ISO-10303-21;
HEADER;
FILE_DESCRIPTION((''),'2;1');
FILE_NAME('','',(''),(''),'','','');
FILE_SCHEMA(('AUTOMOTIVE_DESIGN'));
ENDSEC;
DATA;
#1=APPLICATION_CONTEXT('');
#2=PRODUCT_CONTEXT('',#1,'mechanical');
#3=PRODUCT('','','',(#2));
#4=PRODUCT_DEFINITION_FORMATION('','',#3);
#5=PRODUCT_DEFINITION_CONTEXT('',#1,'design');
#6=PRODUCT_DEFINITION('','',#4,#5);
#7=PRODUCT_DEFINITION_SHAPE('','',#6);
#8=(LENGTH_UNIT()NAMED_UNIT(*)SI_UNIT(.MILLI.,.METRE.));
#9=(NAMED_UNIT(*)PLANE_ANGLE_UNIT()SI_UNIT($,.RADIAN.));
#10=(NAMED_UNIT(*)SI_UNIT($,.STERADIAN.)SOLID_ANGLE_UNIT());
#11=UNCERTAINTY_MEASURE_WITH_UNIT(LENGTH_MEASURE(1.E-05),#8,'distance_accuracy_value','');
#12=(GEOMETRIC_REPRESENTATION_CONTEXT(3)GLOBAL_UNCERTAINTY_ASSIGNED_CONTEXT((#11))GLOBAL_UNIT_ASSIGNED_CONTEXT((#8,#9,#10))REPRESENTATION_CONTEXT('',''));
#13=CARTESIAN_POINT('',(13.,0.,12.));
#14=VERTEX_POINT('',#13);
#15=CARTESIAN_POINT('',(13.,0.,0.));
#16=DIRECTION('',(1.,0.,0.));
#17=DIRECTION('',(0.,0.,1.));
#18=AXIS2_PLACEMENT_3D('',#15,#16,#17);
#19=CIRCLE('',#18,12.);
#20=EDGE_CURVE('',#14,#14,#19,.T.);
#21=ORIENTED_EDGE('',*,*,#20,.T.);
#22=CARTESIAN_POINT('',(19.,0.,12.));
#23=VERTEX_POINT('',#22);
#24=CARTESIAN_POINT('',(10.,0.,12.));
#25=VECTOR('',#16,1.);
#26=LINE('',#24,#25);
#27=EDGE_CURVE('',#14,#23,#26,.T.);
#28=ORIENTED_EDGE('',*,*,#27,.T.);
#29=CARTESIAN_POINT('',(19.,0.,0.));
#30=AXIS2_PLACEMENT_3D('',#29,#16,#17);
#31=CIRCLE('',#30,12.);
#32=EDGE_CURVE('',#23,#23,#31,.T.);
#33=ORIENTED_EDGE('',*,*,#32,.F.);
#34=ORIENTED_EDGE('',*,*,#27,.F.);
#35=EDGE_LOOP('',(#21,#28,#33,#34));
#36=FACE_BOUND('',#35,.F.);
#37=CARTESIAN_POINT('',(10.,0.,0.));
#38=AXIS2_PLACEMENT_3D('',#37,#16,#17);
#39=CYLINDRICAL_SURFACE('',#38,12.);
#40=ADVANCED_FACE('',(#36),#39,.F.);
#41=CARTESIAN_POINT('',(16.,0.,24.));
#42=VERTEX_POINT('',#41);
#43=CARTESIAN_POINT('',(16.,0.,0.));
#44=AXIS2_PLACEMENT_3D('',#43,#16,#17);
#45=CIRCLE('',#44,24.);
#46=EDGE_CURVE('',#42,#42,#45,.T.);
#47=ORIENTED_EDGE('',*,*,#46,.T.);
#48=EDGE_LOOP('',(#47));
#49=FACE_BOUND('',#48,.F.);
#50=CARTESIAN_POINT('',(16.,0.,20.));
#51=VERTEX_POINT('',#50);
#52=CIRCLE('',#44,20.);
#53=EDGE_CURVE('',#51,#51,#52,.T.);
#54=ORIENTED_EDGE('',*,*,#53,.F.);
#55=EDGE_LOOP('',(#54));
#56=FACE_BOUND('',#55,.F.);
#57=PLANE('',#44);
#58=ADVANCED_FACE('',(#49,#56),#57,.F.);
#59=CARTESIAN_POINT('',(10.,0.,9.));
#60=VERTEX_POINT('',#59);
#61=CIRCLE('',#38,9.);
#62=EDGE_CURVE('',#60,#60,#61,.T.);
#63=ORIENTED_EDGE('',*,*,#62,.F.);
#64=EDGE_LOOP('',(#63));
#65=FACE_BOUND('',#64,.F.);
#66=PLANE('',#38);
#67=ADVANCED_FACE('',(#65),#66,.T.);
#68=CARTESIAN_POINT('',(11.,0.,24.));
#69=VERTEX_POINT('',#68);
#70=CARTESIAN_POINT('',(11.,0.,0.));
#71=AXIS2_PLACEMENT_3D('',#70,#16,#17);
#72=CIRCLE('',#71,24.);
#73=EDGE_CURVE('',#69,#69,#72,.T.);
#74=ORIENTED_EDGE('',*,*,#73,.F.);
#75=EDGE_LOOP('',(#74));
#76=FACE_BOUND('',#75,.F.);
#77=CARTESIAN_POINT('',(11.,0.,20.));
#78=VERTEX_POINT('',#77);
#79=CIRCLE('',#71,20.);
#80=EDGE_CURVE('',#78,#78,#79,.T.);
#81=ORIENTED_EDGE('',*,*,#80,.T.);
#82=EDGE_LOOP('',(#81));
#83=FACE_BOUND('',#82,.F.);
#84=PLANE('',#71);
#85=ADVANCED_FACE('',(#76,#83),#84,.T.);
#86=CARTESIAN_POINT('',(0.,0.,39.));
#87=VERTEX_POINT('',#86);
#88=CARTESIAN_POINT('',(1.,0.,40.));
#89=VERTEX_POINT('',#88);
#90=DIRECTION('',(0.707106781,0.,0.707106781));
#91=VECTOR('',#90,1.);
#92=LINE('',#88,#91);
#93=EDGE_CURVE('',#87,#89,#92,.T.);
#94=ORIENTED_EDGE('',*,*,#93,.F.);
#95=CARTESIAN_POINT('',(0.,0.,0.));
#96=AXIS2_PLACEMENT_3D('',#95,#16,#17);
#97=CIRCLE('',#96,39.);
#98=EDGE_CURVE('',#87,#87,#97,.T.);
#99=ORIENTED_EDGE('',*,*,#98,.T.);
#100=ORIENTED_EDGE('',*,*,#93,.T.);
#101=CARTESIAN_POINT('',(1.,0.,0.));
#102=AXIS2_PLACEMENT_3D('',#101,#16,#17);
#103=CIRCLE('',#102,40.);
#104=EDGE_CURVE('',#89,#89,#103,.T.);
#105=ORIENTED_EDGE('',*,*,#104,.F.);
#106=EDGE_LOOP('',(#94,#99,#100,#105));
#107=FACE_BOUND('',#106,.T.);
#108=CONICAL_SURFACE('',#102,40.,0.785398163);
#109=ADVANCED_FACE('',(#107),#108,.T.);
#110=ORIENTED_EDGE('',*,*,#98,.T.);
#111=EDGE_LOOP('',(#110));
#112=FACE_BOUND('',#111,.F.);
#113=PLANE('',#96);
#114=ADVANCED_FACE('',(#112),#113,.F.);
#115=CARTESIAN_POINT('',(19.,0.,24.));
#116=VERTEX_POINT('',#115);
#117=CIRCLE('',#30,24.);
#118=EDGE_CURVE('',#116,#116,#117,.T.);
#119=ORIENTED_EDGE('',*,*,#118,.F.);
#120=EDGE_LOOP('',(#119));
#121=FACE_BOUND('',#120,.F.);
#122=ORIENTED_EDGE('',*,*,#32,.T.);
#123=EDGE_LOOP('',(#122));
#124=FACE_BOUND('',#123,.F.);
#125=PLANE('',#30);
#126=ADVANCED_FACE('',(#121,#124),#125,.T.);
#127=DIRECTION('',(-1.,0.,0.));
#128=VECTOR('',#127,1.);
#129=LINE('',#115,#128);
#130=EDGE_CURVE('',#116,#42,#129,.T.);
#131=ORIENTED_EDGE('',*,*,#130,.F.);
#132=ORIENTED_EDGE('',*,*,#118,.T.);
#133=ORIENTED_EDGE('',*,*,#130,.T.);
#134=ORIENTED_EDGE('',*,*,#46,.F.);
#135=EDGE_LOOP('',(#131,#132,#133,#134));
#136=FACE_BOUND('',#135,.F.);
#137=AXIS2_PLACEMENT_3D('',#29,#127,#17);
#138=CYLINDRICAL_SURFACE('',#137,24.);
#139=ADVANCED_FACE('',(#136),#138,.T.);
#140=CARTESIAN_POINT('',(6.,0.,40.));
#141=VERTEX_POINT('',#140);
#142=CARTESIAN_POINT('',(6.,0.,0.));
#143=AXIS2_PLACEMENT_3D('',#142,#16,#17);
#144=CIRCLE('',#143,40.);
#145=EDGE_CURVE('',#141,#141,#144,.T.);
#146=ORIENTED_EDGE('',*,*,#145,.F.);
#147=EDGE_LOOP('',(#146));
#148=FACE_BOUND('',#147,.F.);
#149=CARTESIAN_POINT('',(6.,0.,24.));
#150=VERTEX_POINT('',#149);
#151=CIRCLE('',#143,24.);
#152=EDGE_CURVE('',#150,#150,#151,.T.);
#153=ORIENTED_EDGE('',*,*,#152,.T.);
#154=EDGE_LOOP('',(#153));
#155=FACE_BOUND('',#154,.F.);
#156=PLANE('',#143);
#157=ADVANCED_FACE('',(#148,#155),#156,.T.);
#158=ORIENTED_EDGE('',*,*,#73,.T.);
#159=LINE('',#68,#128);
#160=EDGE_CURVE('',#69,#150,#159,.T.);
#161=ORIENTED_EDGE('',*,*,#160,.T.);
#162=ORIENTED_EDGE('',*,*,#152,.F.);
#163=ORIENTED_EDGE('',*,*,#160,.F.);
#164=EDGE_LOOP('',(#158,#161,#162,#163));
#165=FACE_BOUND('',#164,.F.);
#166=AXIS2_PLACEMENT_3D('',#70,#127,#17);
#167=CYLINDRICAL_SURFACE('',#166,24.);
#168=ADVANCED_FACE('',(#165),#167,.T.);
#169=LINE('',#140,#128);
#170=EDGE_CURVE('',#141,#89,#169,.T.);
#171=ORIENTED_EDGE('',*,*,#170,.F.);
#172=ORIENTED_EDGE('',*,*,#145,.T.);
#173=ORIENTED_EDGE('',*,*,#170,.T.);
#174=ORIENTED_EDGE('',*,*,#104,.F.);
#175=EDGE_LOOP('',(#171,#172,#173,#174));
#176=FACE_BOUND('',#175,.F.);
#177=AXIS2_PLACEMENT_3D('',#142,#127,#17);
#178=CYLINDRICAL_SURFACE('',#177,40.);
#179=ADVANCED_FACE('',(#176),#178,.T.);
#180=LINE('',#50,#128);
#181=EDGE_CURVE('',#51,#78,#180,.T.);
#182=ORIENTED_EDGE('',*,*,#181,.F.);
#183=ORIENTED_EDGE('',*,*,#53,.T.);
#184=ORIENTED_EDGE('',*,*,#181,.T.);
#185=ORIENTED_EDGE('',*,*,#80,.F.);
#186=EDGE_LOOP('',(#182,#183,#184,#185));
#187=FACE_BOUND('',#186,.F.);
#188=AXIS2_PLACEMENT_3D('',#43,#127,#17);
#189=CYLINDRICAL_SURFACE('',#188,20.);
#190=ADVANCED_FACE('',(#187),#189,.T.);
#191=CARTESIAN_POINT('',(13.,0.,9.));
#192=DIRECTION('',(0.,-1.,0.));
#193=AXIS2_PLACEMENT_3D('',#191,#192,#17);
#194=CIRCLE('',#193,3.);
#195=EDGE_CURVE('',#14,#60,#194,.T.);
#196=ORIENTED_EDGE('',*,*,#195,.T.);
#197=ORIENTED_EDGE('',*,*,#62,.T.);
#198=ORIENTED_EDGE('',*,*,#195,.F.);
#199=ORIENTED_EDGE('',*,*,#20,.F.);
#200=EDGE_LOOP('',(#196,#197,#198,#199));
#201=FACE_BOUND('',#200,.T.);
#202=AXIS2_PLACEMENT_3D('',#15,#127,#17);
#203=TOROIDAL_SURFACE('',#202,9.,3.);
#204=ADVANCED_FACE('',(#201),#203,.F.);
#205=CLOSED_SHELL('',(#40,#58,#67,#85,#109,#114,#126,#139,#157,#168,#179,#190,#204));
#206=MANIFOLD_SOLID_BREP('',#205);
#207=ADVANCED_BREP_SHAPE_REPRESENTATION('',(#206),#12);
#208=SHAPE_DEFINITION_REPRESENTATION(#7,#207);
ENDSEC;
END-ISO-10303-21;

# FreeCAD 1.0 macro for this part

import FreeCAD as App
import Part
import Sketcher
from FreeCAD import Vector


def edges_at(feature, points):
    """Names of the edges that pass closest to the given points."""
    edges = feature.Shape.Edges
    near = lambda p: min(range(len(edges)), key=lambda i: edges[i].distToShape(Part.Vertex(*p))[0])
    return sorted({f"Edge{near(p) + 1}" for p in points})

doc = App.newDocument("Part")
body = doc.addObject("PartDesign::Body", "Body")

# Sketch on XZ plane
sketch1 = doc.addObject("Sketcher::SketchObject", "Sketch")
body.addObject(sketch1)
sketch1.AttachmentSupport = (doc.XZ_Plane, [""])
sketch1.MapMode = "FlatFace"
sketch1.addGeometry(Part.LineSegment(Vector(0, 40, 0), Vector(0, 0, 0)), False)
sketch1.addGeometry(Part.LineSegment(Vector(0, 0, 0), Vector(10, 0, 0)), False)
sketch1.addGeometry(Part.LineSegment(Vector(10, 0, 0), Vector(10, 12, 0)), False)
sketch1.addGeometry(Part.LineSegment(Vector(10, 12, 0), Vector(19, 12, 0)), False)
sketch1.addGeometry(Part.LineSegment(Vector(19, 12, 0), Vector(19, 24, 0)), False)
sketch1.addGeometry(Part.LineSegment(Vector(19, 24, 0), Vector(16, 24, 0)), False)
sketch1.addGeometry(Part.LineSegment(Vector(16, 24, 0), Vector(16, 20, 0)), False)
sketch1.addGeometry(Part.LineSegment(Vector(16, 20, 0), Vector(11, 20, 0)), False)
sketch1.addGeometry(Part.LineSegment(Vector(11, 20, 0), Vector(11, 24, 0)), False)
sketch1.addGeometry(Part.LineSegment(Vector(11, 24, 0), Vector(6, 24, 0)), False)
sketch1.addGeometry(Part.LineSegment(Vector(6, 24, 0), Vector(6, 40, 0)), False)
sketch1.addGeometry(Part.LineSegment(Vector(6, 40, 0), Vector(0, 40, 0)), False)
sketch1.addConstraint(Sketcher.Constraint("Coincident", 0, 2, 1, 1))
sketch1.addConstraint(Sketcher.Constraint("Coincident", 1, 2, 2, 1))
sketch1.addConstraint(Sketcher.Constraint("Coincident", 2, 2, 3, 1))
sketch1.addConstraint(Sketcher.Constraint("Coincident", 3, 2, 4, 1))
sketch1.addConstraint(Sketcher.Constraint("Coincident", 4, 2, 5, 1))
sketch1.addConstraint(Sketcher.Constraint("Coincident", 5, 2, 6, 1))
sketch1.addConstraint(Sketcher.Constraint("Coincident", 6, 2, 7, 1))
sketch1.addConstraint(Sketcher.Constraint("Coincident", 7, 2, 8, 1))
sketch1.addConstraint(Sketcher.Constraint("Coincident", 8, 2, 9, 1))
sketch1.addConstraint(Sketcher.Constraint("Coincident", 9, 2, 10, 1))
sketch1.addConstraint(Sketcher.Constraint("Coincident", 10, 2, 11, 1))
sketch1.addConstraint(Sketcher.Constraint("Coincident", 11, 2, 0, 1))
sketch1.addConstraint(Sketcher.Constraint("Vertical", 0))
sketch1.addConstraint(Sketcher.Constraint("Horizontal", 1))
sketch1.addConstraint(Sketcher.Constraint("Vertical", 2))
sketch1.addConstraint(Sketcher.Constraint("Horizontal", 3))
sketch1.addConstraint(Sketcher.Constraint("Vertical", 4))
sketch1.addConstraint(Sketcher.Constraint("Horizontal", 5))
sketch1.addConstraint(Sketcher.Constraint("Vertical", 6))
sketch1.addConstraint(Sketcher.Constraint("Horizontal", 7))
sketch1.addConstraint(Sketcher.Constraint("Vertical", 8))
sketch1.addConstraint(Sketcher.Constraint("Horizontal", 9))
sketch1.addConstraint(Sketcher.Constraint("Vertical", 10))
sketch1.addConstraint(Sketcher.Constraint("Horizontal", 11))
sketch1.addConstraint(Sketcher.Constraint("Coincident", 0, 2, -1, 1))
sketch1.addConstraint(Sketcher.Constraint("Horizontal", 5, 2, 8, 2))
sketch1.addConstraint(Sketcher.Constraint("Equal", 7, 9))
sketch1.addConstraint(Sketcher.Constraint("Equal", 2, 4))
sketch1.addConstraint(Sketcher.Constraint("DistanceX", 1, 1, 1, 2, 10.0))
sketch1.addConstraint(Sketcher.Constraint("DistanceX", 3, 1, 3, 2, 9.0))
sketch1.addConstraint(Sketcher.Constraint("DistanceX", 5, 2, 5, 1, 3.0))
sketch1.addConstraint(Sketcher.Constraint("DistanceX", 7, 2, 7, 1, 5.0))
sketch1.addConstraint(Sketcher.Constraint("DistanceY", 0, 2, 0, 1, 40.0))
sketch1.addConstraint(Sketcher.Constraint("DistanceY", 2, 1, 2, 2, 12.0))
sketch1.addConstraint(Sketcher.Constraint("DistanceY", 6, 2, 6, 1, 4.0))
revolution = doc.addObject("PartDesign::Revolution", "Revolution")
body.addObject(revolution)
revolution.Profile = sketch1
revolution.ReferenceAxis = (sketch1, ["H_Axis"])
revolution.Angle = 360
doc.recompute()

chamfer = doc.addObject("PartDesign::Chamfer", "Chamfer")
body.addObject(chamfer)
chamfer.Base = (revolution, edges_at(revolution, [(0, 0, -40)]))
chamfer.Size = 1
doc.recompute()

fillet = doc.addObject("PartDesign::Fillet", "Fillet")
body.addObject(fillet)
fillet.Base = (chamfer, edges_at(chamfer, [(10, 0, -12)]))
fillet.Radius = 3

doc.recompute()
